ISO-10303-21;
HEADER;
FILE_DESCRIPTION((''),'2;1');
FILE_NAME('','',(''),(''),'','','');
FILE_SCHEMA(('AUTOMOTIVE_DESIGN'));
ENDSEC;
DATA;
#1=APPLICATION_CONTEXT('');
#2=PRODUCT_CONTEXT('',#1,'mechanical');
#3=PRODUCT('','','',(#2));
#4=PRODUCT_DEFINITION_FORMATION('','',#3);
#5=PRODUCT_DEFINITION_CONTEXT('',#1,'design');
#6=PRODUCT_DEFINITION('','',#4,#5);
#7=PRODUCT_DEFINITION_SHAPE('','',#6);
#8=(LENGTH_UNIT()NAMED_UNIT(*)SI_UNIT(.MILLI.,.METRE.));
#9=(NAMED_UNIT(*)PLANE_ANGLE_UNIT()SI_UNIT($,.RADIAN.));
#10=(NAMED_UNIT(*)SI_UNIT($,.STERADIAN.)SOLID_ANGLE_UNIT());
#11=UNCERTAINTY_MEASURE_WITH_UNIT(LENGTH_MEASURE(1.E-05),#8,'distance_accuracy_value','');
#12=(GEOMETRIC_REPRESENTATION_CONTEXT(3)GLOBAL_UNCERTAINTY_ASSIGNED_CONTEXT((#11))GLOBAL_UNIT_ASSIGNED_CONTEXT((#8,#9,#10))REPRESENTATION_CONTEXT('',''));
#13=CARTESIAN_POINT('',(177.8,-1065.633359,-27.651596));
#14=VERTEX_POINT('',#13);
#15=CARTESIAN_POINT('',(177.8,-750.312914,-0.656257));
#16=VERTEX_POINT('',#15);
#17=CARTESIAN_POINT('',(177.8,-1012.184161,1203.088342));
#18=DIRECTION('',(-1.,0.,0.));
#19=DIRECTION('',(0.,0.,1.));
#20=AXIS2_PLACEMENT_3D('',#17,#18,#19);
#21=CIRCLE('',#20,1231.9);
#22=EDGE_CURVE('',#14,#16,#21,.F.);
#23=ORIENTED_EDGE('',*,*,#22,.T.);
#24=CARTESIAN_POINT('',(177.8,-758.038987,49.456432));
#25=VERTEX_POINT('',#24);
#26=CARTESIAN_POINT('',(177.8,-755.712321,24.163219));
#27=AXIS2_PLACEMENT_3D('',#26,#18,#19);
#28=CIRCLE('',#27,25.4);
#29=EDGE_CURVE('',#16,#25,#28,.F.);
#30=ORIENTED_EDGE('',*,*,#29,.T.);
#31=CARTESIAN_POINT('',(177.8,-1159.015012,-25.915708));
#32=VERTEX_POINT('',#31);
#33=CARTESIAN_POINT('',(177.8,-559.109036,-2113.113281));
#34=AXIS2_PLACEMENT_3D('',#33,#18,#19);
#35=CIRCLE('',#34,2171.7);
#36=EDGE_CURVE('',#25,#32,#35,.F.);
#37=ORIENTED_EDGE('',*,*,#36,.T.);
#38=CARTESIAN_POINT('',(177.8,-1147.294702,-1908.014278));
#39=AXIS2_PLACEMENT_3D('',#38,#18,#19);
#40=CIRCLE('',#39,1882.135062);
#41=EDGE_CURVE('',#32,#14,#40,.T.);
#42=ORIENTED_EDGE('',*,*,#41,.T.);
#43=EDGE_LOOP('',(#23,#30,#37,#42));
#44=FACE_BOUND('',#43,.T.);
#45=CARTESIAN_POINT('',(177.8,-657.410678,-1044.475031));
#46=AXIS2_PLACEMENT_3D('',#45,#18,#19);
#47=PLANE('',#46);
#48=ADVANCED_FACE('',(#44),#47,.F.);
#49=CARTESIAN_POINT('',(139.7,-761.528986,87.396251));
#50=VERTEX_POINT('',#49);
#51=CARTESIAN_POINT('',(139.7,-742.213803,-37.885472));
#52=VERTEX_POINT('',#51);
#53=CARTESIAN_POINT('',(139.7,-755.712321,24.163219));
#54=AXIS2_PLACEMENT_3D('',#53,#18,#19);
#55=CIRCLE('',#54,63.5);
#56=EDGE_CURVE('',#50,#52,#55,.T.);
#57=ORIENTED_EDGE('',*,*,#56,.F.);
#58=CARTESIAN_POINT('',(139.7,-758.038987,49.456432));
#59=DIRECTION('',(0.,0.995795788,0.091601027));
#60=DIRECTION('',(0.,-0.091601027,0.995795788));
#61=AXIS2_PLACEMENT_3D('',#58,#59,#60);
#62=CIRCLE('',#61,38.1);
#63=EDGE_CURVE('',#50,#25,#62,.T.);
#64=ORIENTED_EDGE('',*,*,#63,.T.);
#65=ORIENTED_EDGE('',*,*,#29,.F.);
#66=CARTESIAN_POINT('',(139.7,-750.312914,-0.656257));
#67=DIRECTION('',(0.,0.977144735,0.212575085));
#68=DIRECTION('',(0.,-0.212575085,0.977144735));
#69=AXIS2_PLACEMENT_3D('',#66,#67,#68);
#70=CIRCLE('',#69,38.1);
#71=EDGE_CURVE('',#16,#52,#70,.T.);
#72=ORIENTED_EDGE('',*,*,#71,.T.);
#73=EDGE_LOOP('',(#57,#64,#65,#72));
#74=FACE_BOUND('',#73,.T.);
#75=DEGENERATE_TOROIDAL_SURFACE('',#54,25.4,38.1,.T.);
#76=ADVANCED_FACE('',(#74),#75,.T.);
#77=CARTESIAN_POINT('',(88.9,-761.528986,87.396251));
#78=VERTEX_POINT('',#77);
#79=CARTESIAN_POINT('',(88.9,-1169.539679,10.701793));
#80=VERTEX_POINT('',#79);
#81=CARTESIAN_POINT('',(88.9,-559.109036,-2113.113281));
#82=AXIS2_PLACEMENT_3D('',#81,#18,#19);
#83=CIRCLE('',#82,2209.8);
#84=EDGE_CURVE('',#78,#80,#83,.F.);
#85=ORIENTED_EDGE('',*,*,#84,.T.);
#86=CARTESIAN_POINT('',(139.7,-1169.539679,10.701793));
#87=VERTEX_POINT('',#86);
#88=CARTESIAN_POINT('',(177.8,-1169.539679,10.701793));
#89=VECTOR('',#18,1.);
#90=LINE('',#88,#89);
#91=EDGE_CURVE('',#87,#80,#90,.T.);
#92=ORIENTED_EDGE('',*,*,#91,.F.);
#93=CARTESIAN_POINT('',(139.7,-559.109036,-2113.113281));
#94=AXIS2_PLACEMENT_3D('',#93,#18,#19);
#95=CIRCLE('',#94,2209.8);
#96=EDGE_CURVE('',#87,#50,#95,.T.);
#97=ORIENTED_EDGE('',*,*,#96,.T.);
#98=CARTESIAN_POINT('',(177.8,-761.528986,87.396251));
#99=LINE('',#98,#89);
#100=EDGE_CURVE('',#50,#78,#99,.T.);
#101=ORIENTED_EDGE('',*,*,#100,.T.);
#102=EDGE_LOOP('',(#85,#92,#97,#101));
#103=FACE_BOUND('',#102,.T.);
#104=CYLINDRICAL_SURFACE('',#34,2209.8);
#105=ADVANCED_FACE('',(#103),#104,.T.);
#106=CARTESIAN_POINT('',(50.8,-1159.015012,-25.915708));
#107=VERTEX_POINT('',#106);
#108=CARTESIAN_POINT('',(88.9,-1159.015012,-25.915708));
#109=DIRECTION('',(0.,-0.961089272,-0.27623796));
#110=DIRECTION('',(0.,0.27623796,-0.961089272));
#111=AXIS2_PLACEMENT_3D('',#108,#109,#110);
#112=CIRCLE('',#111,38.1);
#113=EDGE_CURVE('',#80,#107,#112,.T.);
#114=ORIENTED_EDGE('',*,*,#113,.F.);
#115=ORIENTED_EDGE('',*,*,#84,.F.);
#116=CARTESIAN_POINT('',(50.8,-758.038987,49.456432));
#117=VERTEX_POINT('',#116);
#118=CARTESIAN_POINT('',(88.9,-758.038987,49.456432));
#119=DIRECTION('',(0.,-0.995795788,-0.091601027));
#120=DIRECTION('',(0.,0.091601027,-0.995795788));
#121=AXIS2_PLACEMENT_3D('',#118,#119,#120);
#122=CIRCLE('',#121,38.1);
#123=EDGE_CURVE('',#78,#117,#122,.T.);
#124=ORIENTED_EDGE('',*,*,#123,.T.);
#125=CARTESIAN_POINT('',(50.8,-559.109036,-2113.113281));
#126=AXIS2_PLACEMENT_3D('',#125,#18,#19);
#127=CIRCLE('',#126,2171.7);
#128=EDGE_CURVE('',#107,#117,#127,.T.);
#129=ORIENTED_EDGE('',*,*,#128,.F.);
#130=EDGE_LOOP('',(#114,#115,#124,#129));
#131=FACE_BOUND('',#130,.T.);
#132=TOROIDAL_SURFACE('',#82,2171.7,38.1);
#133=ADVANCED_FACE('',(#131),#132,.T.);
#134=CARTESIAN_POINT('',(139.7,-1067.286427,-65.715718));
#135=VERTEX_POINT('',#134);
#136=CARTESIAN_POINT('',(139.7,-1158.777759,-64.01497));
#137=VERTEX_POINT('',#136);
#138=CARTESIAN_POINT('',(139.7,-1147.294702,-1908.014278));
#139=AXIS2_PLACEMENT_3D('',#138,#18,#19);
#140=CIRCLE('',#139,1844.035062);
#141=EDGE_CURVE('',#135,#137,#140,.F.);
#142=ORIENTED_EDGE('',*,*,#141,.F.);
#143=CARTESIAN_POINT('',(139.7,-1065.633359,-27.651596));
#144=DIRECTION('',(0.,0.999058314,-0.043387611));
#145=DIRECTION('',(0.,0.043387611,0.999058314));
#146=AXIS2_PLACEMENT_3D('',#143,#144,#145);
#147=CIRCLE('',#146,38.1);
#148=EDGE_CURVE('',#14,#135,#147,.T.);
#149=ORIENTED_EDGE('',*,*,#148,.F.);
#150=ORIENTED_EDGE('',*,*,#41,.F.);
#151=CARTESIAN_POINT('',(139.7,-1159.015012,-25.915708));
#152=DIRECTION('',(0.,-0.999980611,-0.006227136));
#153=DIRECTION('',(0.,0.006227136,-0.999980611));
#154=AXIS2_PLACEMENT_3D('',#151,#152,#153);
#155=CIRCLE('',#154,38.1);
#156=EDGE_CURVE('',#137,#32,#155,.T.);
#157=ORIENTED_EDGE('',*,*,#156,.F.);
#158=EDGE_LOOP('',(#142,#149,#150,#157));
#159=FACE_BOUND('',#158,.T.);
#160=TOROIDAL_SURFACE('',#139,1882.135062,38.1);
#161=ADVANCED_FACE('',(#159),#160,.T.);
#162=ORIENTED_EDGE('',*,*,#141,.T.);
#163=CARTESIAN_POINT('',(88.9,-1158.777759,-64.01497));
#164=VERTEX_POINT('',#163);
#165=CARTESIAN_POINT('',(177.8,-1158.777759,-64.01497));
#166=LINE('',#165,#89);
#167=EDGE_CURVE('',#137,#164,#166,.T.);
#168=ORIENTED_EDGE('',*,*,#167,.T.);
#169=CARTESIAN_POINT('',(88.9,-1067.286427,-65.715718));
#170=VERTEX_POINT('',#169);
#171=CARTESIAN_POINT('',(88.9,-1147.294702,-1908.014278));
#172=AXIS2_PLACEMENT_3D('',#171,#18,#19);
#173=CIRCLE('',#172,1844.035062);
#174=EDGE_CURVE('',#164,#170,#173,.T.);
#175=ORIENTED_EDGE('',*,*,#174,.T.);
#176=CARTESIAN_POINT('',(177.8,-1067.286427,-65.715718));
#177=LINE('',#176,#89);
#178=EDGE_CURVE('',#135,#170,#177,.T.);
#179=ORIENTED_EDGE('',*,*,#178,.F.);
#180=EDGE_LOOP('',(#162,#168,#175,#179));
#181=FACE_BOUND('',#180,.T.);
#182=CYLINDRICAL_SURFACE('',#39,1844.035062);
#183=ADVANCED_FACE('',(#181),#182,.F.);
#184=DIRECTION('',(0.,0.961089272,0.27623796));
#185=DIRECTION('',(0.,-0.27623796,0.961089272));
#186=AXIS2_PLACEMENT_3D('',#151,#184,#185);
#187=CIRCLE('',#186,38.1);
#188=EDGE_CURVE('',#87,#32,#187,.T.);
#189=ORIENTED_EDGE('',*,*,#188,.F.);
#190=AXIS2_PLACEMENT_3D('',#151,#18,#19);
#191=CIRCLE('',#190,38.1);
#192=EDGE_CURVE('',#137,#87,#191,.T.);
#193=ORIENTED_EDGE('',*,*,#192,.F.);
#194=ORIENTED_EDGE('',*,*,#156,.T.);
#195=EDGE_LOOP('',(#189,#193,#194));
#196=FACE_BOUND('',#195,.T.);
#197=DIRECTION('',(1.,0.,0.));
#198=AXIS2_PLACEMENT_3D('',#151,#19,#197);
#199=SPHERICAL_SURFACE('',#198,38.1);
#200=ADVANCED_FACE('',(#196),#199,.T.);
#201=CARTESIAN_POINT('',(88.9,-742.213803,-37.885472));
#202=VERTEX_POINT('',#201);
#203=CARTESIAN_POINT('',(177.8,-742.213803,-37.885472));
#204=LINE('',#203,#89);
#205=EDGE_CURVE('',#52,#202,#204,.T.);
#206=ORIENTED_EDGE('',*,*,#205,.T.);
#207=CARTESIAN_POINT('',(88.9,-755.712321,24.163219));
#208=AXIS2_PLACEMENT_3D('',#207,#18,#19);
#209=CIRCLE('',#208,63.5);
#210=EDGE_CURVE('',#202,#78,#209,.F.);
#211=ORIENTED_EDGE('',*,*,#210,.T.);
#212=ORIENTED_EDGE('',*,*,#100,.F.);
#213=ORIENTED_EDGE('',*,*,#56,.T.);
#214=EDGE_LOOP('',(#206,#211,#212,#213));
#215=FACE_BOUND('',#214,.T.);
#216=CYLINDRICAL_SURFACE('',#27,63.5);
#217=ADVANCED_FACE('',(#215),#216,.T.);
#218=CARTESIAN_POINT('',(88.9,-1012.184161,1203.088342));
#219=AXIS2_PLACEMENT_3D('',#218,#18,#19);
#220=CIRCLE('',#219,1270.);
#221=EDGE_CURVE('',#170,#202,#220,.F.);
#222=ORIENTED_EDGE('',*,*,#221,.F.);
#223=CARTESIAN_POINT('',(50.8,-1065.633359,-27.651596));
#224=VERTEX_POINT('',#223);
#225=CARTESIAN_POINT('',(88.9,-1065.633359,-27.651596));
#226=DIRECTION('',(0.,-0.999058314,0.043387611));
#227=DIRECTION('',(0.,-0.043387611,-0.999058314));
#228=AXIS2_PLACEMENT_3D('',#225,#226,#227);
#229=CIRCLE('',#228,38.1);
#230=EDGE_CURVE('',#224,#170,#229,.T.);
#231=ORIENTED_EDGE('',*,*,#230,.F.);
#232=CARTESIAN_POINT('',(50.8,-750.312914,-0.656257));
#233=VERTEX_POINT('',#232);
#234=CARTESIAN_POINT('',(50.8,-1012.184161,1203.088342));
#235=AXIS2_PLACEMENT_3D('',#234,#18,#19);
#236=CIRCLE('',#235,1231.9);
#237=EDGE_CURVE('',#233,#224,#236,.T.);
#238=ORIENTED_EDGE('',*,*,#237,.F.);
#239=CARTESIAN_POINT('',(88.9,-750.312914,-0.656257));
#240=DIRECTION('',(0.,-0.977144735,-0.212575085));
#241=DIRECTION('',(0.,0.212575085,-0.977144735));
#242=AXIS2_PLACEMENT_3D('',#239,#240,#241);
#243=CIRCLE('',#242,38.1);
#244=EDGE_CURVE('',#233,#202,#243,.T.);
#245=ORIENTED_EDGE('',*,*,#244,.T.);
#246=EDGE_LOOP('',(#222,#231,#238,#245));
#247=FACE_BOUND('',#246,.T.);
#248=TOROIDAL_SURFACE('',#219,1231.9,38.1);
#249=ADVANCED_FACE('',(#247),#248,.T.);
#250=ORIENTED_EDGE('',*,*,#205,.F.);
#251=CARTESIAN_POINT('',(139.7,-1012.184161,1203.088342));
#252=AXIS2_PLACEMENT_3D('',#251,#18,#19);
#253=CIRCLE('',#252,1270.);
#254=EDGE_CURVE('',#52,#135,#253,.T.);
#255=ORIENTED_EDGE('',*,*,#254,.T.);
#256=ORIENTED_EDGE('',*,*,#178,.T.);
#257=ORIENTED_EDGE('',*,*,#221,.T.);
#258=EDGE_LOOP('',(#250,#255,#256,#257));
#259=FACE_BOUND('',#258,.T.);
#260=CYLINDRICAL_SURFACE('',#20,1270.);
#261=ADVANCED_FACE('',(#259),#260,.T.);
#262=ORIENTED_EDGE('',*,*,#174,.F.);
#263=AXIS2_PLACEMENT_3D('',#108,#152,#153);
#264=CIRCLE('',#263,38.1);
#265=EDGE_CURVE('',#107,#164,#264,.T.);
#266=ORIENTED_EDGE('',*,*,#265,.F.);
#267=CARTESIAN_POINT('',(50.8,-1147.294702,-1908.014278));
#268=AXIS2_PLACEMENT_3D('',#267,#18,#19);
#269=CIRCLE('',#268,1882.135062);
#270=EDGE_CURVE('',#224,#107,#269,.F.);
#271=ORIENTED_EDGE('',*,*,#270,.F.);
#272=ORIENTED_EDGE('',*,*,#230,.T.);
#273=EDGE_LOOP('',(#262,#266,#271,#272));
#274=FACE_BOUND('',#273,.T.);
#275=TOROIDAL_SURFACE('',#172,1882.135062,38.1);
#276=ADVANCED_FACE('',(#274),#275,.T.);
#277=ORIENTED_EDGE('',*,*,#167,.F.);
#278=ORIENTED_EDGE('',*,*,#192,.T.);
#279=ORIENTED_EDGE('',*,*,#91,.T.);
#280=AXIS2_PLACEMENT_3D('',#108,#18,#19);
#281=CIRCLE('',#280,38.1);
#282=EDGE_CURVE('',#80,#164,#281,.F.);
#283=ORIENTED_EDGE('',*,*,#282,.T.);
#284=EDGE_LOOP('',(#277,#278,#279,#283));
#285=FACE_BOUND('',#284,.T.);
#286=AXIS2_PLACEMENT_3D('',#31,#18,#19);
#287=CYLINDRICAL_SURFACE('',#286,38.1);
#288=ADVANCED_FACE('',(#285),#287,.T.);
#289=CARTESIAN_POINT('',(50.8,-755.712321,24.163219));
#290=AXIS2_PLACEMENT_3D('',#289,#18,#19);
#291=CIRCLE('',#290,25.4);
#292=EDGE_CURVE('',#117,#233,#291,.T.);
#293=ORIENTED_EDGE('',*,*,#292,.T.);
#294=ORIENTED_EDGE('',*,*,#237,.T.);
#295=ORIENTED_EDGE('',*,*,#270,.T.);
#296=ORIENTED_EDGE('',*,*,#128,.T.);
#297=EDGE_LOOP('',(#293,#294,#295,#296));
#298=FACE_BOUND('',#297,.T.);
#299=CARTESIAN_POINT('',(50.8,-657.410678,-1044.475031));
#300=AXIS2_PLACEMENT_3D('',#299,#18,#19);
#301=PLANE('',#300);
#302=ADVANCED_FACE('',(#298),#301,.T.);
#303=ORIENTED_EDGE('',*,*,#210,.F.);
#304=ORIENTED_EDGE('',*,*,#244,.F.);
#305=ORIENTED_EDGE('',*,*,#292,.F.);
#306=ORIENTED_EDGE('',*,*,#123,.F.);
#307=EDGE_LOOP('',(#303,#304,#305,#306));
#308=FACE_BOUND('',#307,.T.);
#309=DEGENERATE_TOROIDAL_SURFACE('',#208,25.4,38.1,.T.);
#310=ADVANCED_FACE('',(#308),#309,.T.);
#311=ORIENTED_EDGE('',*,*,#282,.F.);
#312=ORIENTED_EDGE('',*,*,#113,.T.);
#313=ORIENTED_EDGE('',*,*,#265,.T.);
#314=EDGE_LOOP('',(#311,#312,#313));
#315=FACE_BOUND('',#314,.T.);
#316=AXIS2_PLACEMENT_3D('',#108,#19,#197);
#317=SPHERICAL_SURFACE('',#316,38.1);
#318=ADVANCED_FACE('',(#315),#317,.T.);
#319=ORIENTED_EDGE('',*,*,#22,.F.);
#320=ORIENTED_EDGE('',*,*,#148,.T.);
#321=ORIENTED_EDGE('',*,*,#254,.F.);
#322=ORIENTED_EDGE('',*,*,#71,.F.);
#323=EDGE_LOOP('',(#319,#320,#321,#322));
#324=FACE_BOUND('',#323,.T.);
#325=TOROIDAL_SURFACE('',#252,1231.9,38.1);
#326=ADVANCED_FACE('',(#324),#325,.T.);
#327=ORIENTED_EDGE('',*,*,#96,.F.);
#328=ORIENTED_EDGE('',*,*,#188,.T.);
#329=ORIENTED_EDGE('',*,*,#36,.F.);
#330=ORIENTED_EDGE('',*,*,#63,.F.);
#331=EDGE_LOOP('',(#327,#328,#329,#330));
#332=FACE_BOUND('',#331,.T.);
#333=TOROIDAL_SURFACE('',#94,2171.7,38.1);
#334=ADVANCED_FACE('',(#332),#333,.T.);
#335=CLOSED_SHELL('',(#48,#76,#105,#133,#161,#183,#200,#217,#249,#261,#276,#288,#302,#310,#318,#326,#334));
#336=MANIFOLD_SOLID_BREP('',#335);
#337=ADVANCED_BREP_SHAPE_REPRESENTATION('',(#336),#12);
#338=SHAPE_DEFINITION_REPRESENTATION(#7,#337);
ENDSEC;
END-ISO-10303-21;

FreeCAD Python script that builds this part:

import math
import FreeCAD as App
import Part
import Sketcher

V = App.Vector
Q = App.Units.Quantity


def edges_at(feature, points):
    """Names of the edges that pass closest to the given points."""
    edges = feature.Shape.Edges
    near = lambda p: min(range(len(edges)), key=lambda i: edges[i].distToShape(Part.Vertex(*p))[0])
    return sorted({f"Edge{near(p) + 1}" for p in points})

doc = App.newDocument("Part")
body = doc.addObject("PartDesign::Body", "Body")

# Sketch on YZ plane
sketch1 = doc.addObject("Sketcher::SketchObject", "Sketch")
body.addObject(sketch1)
sketch1.AttachmentSupport = (doc.YZ_Plane, [""])
sketch1.MapMode = "FlatFace"
sketch1.AttachmentOffset = App.Placement(V(0, 0, 4.5 * 25.4), App.Rotation())
sketch1.addGeometry([
    Part.ArcOfCircle(Part.Circle(V(-756, 24, 0), V(0, 0, 1), 64), math.radians(-78), math.radians(95)),  # 0
    Part.ArcOfCircle(Part.Circle(V(-559, -2113, 0), V(0, 0, 1), 2210), math.radians(95.26), math.radians(106.04)),  # 1
    Part.ArcOfCircle(Part.Circle(V(-1159, -26, 0), V(0, 0, 1), 38), math.radians(106), math.radians(270)),  # 2
    Part.ArcOfCircle(Part.Circle(V(-1147, -1908, 0), V(0, 0, 1), 1844), math.radians(87.51), math.radians(90.36)),  # 3
    Part.ArcOfCircle(Part.Circle(V(-1012, 1203, 0), V(0, 0, 1), 1270), math.radians(-92.49), math.radians(-77.73)),  # 4
], False)
sketch1.addConstraint([
    Sketcher.Constraint("Tangent", 0, 2, 1, 1),
    Sketcher.Constraint("Tangent", 1, 2, 2, 1),
    Sketcher.Constraint("Tangent", 2, 2, 3, 2),
    Sketcher.Constraint("Tangent", 3, 1, 4, 1),
    Sketcher.Constraint("Tangent", 4, 2, 0, 1),
    Sketcher.Constraint("Radius", 1, Q("87 in")),
    Sketcher.Constraint("Radius", 4, Q("50 in")),
    Sketcher.Constraint("Radius", 0, Q("2.5 in")),
    Sketcher.Constraint("Radius", 2, Q("1.5 in")),
    Sketcher.Constraint("Radius", 3, 1844.035061),
    Sketcher.Constraint("DistanceY", 1, 3, 0, 3, 2137.2765),
    Sketcher.Constraint("DistanceX", 0, 3, -1, 1, 755.712321),
    Sketcher.Constraint("DistanceY", -1, 1, 0, 3, 24.163219),
    Sketcher.Constraint("DistanceY", 2, 3, -1, 1, 25.915708),
    Sketcher.Constraint("DistanceX", 4, 3, -1, 1, 1012.184161),
])
pad1 = doc.addObject("PartDesign::Pad", "Pad")
body.addObject(pad1)
pad1.Profile = sketch1
pad1.Length = Q("5 in")
pad1.Midplane = True
doc.recompute()

fillet = doc.addObject("PartDesign::Fillet", "Fillet")
body.addObject(fillet)
fillet.Base = (pad1, edges_at(pad1, [
    (50.8, -903.853, -62.283),
    (177.8, -903.853, -62.283),
    (50.8, -1113.022, -64.298),
    (177.8, -1113.022, -64.298),
    (50.8, -1196.726, -31.347),
    (177.8, -1196.726, -31.347),
    (50.8, -967.339, 58.652),
    (177.8, -967.339, 58.652),
    (177.8, -692.954, 33.839),
    (50.8, -692.954, 33.839),
]))
fillet.Radius = Q("1.5 in")

doc.recompute()
